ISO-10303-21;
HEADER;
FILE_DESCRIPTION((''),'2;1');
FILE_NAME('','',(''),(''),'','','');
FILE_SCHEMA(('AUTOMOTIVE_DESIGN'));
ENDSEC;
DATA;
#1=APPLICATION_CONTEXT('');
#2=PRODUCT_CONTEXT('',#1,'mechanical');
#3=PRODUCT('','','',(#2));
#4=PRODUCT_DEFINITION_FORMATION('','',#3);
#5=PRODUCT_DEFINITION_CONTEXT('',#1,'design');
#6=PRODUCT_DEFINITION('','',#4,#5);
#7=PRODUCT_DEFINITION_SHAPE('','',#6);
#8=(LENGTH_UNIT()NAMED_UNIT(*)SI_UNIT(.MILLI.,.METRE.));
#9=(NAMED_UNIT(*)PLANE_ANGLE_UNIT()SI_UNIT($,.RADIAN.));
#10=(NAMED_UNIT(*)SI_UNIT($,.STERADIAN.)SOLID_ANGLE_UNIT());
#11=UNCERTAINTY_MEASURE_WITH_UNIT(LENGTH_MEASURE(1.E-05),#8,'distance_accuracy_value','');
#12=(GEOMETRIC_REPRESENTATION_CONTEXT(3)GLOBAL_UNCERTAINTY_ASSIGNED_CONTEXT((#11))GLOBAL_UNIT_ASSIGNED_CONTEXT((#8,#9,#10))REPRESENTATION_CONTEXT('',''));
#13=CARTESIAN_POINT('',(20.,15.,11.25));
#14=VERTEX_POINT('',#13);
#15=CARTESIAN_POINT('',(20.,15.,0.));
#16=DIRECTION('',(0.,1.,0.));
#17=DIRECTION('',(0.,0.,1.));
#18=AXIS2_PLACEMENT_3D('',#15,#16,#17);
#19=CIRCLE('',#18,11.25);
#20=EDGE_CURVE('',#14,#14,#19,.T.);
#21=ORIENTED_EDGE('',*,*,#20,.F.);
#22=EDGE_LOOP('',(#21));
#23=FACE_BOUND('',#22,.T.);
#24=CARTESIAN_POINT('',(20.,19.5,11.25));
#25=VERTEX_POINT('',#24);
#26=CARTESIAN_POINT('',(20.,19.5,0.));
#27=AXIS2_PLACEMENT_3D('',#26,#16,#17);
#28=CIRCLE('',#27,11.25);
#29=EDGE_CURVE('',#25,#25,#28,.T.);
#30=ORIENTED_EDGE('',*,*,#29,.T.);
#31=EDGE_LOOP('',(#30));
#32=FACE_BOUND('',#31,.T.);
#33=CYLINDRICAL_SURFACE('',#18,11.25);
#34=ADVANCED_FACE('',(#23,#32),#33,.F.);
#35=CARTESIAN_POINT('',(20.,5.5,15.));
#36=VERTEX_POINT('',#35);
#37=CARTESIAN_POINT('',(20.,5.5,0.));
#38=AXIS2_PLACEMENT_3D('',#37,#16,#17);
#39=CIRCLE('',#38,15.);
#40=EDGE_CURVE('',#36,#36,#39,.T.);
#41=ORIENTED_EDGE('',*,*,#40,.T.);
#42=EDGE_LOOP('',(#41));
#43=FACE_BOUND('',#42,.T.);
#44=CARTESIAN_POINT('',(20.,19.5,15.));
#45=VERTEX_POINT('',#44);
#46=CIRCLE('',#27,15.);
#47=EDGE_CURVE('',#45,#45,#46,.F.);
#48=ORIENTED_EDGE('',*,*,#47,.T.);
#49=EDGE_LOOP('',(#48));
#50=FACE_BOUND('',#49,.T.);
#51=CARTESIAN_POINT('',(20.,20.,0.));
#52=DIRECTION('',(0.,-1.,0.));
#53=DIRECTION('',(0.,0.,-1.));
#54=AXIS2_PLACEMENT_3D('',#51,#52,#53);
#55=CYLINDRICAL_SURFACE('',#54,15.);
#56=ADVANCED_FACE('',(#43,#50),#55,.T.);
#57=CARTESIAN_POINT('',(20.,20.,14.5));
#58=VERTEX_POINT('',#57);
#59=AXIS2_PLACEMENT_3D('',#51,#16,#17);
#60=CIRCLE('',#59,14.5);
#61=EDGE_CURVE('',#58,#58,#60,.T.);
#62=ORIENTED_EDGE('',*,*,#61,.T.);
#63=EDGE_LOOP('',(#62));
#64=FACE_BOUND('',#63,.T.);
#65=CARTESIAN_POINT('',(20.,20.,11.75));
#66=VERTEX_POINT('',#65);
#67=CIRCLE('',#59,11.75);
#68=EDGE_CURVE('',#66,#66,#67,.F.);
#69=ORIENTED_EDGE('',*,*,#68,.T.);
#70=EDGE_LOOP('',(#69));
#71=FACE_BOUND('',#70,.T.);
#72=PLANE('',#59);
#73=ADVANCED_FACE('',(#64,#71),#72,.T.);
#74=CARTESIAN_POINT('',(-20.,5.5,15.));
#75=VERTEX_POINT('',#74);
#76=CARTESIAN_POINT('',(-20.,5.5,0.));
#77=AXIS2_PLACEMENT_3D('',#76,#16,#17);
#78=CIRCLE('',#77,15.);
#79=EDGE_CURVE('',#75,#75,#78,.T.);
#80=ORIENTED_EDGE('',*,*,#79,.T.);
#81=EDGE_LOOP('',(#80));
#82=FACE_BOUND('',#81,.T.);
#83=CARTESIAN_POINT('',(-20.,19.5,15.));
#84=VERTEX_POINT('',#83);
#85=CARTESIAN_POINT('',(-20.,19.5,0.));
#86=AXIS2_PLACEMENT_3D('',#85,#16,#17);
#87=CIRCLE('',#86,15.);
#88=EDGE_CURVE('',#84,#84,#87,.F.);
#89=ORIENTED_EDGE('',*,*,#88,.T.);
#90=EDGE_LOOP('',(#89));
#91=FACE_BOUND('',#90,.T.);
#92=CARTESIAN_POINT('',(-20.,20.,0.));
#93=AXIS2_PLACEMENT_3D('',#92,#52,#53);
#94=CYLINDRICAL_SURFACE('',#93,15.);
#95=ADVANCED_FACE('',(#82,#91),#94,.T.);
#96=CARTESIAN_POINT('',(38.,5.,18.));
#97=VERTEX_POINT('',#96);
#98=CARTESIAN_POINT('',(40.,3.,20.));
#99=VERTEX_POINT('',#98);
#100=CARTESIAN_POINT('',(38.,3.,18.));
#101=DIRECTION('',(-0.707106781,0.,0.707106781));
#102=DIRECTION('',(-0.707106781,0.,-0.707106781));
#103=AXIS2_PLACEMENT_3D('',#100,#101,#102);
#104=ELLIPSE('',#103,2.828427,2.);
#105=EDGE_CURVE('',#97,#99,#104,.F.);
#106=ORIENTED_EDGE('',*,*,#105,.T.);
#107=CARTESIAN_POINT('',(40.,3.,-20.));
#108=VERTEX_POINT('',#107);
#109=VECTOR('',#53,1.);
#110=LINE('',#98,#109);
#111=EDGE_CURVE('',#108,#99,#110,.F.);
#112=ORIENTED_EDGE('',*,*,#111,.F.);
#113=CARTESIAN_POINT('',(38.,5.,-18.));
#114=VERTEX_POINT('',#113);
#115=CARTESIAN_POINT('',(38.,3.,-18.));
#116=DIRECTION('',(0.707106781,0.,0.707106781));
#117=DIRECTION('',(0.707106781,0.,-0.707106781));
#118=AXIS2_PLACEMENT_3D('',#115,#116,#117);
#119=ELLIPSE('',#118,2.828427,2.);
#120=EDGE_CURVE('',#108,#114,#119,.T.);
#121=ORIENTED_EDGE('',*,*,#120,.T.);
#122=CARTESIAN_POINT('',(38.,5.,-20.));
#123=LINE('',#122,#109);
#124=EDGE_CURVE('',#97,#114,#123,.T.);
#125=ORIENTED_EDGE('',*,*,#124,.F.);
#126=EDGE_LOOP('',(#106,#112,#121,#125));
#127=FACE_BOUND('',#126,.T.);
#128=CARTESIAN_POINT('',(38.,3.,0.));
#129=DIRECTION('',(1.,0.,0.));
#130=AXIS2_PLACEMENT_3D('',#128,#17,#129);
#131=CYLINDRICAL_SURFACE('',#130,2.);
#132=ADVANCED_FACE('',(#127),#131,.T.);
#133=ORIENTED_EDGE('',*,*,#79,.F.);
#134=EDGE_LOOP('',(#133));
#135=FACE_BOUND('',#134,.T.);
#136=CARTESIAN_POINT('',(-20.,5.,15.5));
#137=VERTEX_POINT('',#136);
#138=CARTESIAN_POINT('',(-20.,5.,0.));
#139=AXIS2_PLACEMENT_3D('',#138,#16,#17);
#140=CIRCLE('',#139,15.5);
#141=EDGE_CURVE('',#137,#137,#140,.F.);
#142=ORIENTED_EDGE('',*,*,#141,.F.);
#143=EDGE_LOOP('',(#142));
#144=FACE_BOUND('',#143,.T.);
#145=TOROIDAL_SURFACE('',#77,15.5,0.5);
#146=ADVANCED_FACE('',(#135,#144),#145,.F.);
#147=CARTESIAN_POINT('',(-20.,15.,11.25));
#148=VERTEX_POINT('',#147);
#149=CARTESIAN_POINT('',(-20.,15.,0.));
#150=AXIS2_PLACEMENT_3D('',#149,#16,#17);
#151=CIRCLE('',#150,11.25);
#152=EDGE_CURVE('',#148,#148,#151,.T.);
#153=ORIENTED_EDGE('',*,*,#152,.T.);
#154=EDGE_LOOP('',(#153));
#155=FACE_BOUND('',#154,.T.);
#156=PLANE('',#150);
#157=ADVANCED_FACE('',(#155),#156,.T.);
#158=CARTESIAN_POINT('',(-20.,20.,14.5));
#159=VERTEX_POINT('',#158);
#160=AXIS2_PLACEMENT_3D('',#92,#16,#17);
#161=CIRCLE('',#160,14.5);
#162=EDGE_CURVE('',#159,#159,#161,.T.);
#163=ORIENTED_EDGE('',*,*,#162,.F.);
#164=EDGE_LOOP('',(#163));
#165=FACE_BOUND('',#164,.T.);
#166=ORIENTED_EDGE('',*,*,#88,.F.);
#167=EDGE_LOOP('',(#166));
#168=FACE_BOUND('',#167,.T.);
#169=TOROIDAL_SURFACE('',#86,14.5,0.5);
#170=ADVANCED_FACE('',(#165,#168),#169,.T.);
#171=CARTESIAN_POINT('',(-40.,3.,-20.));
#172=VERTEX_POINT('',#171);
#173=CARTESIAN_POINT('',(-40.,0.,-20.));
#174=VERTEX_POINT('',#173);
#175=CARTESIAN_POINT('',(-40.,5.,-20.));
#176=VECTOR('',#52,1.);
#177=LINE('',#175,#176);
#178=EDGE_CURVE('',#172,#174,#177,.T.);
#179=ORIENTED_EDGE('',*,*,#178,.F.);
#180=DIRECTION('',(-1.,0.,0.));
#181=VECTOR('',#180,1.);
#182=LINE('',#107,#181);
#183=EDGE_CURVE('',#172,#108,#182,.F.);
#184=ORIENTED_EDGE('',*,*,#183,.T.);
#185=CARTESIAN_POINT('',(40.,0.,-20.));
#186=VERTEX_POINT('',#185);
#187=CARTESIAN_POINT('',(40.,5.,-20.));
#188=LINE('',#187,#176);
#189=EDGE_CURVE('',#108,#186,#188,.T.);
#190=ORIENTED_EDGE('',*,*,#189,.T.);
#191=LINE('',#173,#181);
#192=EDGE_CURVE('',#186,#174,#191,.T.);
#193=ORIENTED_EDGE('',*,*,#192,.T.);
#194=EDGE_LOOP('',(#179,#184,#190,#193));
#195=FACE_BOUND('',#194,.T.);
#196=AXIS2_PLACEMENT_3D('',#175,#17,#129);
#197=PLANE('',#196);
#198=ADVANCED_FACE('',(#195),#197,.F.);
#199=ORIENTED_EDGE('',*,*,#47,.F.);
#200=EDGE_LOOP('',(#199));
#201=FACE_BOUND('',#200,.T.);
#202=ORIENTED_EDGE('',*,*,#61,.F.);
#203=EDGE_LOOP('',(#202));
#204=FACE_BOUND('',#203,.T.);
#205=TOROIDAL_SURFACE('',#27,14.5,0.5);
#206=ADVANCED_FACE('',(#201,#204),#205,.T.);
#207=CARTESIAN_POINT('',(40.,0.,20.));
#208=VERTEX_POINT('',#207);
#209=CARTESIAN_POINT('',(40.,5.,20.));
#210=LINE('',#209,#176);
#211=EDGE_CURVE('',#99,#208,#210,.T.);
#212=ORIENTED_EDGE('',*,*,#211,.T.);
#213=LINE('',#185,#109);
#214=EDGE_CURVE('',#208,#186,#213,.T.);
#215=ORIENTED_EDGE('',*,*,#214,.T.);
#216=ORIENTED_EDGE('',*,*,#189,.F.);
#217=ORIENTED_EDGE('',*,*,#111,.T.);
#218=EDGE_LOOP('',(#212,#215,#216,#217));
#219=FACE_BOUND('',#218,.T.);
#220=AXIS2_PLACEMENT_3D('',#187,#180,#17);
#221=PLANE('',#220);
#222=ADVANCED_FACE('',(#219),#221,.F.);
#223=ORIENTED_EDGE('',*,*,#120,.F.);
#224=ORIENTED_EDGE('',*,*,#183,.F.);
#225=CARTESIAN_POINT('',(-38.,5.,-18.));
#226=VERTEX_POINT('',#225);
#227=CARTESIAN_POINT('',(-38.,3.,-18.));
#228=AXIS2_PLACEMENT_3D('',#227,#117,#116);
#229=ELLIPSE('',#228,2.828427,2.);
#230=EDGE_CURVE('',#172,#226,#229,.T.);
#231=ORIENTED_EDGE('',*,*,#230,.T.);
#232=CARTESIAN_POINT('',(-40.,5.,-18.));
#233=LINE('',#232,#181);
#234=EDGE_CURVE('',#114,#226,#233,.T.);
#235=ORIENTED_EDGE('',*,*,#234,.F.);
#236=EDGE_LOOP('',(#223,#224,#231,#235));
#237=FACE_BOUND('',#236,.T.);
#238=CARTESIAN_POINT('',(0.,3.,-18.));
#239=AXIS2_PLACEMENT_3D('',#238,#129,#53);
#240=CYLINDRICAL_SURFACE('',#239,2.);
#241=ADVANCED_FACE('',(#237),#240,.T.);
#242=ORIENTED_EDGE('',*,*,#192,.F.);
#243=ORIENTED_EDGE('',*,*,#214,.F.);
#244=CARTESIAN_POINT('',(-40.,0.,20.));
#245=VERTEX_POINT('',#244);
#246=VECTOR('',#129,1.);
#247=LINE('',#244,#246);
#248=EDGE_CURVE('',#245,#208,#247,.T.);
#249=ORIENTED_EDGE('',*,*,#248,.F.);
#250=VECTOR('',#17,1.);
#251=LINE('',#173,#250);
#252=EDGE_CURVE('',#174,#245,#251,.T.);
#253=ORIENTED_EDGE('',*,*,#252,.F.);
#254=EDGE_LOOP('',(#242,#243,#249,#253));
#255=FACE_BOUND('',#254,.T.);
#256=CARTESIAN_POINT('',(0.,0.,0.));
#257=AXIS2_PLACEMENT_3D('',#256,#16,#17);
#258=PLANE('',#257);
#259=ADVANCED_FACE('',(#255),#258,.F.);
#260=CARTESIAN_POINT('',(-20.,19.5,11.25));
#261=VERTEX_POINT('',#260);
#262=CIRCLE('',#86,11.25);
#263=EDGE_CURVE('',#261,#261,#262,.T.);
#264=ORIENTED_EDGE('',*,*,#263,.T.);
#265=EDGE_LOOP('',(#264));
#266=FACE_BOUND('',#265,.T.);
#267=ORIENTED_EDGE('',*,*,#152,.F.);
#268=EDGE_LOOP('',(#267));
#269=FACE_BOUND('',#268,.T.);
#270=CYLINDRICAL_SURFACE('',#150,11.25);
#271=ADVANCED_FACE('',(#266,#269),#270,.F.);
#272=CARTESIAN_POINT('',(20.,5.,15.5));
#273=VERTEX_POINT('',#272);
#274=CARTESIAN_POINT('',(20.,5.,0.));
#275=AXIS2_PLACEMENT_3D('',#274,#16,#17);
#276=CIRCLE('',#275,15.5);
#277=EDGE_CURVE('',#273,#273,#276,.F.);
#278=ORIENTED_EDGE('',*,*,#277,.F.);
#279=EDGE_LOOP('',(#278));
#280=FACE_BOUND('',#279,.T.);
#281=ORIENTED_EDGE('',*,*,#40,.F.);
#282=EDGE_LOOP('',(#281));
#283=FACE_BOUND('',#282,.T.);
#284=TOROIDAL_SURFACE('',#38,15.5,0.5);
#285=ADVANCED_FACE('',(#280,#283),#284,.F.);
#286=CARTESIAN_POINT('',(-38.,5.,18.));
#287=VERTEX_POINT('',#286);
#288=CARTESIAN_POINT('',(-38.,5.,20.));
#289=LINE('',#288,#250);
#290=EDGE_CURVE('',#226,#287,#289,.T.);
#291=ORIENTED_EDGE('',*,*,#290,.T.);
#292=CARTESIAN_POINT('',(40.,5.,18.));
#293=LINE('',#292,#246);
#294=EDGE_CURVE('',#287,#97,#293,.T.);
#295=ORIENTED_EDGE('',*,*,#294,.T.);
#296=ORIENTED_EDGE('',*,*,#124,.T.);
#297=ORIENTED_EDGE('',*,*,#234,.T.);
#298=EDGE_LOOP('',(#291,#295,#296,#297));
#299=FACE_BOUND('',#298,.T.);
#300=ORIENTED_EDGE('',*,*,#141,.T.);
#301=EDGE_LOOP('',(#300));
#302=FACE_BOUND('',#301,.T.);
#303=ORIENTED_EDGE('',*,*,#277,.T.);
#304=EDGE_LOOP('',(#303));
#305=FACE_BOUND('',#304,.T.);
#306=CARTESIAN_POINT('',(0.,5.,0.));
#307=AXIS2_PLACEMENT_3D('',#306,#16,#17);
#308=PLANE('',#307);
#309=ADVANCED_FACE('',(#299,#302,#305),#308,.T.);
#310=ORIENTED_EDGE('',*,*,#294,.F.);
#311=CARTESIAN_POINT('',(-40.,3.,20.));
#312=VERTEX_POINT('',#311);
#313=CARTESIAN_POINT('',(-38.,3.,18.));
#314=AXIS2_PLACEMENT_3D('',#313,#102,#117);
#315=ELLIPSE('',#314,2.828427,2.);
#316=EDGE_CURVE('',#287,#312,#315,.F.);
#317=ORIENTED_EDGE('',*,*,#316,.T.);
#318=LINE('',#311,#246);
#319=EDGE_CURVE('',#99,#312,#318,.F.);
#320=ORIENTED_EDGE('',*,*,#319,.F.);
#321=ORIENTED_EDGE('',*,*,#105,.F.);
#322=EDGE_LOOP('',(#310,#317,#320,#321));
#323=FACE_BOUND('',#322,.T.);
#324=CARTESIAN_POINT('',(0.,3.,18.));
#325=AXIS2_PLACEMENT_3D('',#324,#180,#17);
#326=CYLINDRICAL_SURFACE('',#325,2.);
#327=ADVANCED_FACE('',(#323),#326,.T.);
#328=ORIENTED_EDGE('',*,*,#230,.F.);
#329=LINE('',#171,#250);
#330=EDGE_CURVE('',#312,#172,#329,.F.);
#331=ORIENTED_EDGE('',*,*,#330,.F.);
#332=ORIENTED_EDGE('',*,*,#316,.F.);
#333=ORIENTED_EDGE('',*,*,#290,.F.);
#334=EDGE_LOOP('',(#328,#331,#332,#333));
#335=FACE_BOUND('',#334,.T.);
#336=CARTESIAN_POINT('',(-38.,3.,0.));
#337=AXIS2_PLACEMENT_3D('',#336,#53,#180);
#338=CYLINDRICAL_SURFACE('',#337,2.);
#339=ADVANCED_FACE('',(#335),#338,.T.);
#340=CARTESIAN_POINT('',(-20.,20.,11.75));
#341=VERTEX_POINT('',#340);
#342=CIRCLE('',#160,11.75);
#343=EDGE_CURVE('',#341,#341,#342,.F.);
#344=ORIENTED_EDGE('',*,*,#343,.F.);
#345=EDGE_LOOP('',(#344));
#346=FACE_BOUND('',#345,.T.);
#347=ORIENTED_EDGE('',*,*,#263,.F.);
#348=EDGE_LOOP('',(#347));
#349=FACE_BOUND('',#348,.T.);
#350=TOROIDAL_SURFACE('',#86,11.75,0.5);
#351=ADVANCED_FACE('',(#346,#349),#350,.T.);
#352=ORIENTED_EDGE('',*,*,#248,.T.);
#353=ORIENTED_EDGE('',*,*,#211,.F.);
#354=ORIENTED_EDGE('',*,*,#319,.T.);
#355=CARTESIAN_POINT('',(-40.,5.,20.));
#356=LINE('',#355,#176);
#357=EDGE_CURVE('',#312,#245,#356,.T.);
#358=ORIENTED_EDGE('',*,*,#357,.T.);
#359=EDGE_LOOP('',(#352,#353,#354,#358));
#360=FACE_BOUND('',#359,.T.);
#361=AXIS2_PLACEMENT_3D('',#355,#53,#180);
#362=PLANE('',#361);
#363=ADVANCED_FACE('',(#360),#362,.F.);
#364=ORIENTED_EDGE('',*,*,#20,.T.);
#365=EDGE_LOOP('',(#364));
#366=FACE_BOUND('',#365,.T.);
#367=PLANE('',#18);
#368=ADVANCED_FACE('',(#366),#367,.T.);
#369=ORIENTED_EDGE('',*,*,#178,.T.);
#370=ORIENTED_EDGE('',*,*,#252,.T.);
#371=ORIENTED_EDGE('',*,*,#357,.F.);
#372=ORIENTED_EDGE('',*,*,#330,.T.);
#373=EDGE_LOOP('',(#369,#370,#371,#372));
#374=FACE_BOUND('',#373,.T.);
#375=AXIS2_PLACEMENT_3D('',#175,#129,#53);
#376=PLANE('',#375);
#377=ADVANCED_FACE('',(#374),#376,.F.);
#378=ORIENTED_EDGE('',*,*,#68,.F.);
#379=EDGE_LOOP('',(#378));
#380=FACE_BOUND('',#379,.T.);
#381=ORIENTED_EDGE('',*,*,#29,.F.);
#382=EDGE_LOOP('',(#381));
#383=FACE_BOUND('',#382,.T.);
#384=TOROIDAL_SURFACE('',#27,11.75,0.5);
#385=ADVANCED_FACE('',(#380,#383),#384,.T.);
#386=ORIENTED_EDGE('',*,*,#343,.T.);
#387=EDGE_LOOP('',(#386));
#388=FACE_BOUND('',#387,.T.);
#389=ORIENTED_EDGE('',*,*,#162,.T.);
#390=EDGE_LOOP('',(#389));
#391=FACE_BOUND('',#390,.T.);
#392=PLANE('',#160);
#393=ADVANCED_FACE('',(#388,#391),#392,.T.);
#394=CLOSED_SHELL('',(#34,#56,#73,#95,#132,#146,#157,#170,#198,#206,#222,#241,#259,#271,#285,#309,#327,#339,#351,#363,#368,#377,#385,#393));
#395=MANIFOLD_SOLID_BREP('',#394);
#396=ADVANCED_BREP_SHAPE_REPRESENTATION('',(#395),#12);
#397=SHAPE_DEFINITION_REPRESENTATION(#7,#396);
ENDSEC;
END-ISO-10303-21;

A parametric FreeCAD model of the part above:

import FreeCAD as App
import Part
import Sketcher
Q = App.Units.Quantity


def edges_at(feature, points):
    """Names of the edges that pass closest to the given points."""
    edges = feature.Shape.Edges
    near = lambda p: min(range(len(edges)), key=lambda i: edges[i].distToShape(Part.Vertex(*p))[0])
    return sorted({f"Edge{near(p) + 1}" for p in points})

doc = App.newDocument("Part")
params = doc.addObject("Spreadsheet::Sheet", "Params")
for row, (alias, value) in enumerate([
    ("sketch1_width", "80 mm"),
    ("sketch1_height", "40 mm"),
    ("pad1_length", "5 mm"),
    ("sketch2_diameter", "30 mm"),
    ("pad2_length", "15 mm"),
    ("sketch3_diameter", "22.5 mm"),
    ("pocket1_length", "5 mm"),
    ("fillet_radius", "2 mm"),
    ("fillet2_radius", "0.5 mm"),
], start=1):
    params.set(f"A{row}", alias)
    params.set(f"B{row}", "=" + value)
    params.setAlias(f"B{row}", alias)

body = doc.addObject("PartDesign::Body", "Body")

# Sketch on XZ plane
sketch1 = doc.addObject("Sketcher::SketchObject", "Sketch")
body.addObject(sketch1)
sketch1.AttachmentSupport = (doc.XZ_Plane, [""])
sketch1.MapMode = "FlatFace"
sketch1.addGeometry(Part.LineSegment(App.Vector(-40, -20, 0), App.Vector(-40, 20, 0)), False)
sketch1.addGeometry(Part.LineSegment(App.Vector(-40, 20, 0), App.Vector(40, 20, 0)), False)
sketch1.addGeometry(Part.LineSegment(App.Vector(40, 20, 0), App.Vector(40, -20, 0)), False)
sketch1.addGeometry(Part.LineSegment(App.Vector(40, -20, 0), App.Vector(-40, -20, 0)), False)
sketch1.addConstraint(Sketcher.Constraint("Coincident", 0, 2, 1, 1))
sketch1.addConstraint(Sketcher.Constraint("Coincident", 1, 2, 2, 1))
sketch1.addConstraint(Sketcher.Constraint("Coincident", 2, 2, 3, 1))
sketch1.addConstraint(Sketcher.Constraint("Coincident", 3, 2, 0, 1))
sketch1.addConstraint(Sketcher.Constraint("Vertical", 0))
sketch1.addConstraint(Sketcher.Constraint("Horizontal", 1))
sketch1.addConstraint(Sketcher.Constraint("Vertical", 2))
sketch1.addConstraint(Sketcher.Constraint("Horizontal", 3))
sketch1.addConstraint(Sketcher.Constraint("Symmetric", 0, 2, 2, 2, -1, 1))
sketch1.addConstraint(Sketcher.Constraint("DistanceX", 1, 1, 1, 2, Q("80 mm")))
sketch1.addConstraint(Sketcher.Constraint("DistanceY", 0, 1, 0, 2, Q("40 mm")))
sketch1.setExpression("Constraints[9]", "Params.sketch1_width")
sketch1.setExpression("Constraints[10]", "Params.sketch1_height")
pad1 = doc.addObject("PartDesign::Pad", "Pad")
body.addObject(pad1)
pad1.Profile = sketch1
pad1.setExpression("Length", "Params.pad1_length")
pad1.Reversed = True

# Sketch on XZ plane
sketch2 = doc.addObject("Sketcher::SketchObject", "Sketch001")
body.addObject(sketch2)
sketch2.AttachmentSupport = (doc.XZ_Plane, [""])
sketch2.MapMode = "FlatFace"
sketch2.AttachmentOffset = App.Placement(App.Vector(0, 0, -5), App.Rotation())
sketch2.addGeometry(Part.Circle(App.Vector(-20, 0, 0), App.Vector(0, 0, 1), 15), False)
sketch2.addGeometry(Part.Circle(App.Vector(20, 0, 0), App.Vector(0, 0, 1), 15), False)
sketch2.addConstraint(Sketcher.Constraint("Equal", 0, 1))
sketch2.addConstraint(Sketcher.Constraint("Symmetric", 0, 3, 1, 3, -1, 1))
sketch2.addConstraint(Sketcher.Constraint("PointOnObject", 0, 3, -1))
sketch2.addConstraint(Sketcher.Constraint("Diameter", 0, Q("30 mm")))
sketch2.addConstraint(Sketcher.Constraint("DistanceX", 0, 3, -1, 1, Q("20 mm")))
sketch2.setExpression("Constraints[3]", "Params.sketch2_diameter")
pad2 = doc.addObject("PartDesign::Pad", "Pad001")
body.addObject(pad2)
pad2.Profile = sketch2
pad2.setExpression("Length", "Params.pad2_length")
pad2.Reversed = True

# Sketch on XZ plane
sketch3 = doc.addObject("Sketcher::SketchObject", "Sketch002")
body.addObject(sketch3)
sketch3.AttachmentSupport = (doc.XZ_Plane, [""])
sketch3.MapMode = "FlatFace"
sketch3.AttachmentOffset = App.Placement(App.Vector(0, 0, -20), App.Rotation())
sketch3.addGeometry(Part.Circle(App.Vector(-20, 0, 0), App.Vector(0, 0, 1), 11), False)
sketch3.addGeometry(Part.Circle(App.Vector(20, 0, 0), App.Vector(0, 0, 1), 11), False)
sketch3.addConstraint(Sketcher.Constraint("Equal", 0, 1))
sketch3.addConstraint(Sketcher.Constraint("Symmetric", 0, 3, 1, 3, -1, 1))
sketch3.addConstraint(Sketcher.Constraint("PointOnObject", 0, 3, -1))
sketch3.addConstraint(Sketcher.Constraint("Diameter", 0, Q("22.5 mm")))
sketch3.addConstraint(Sketcher.Constraint("DistanceX", 0, 3, -1, 1, Q("20 mm")))
sketch3.setExpression("Constraints[3]", "Params.sketch3_diameter")
pocket1 = doc.addObject("PartDesign::Pocket", "Pocket")
body.addObject(pocket1)
pocket1.Profile = sketch3
pocket1.setExpression("Length", "Params.pocket1_length")
pocket1.Reversed = True
doc.recompute()

fillet = doc.addObject("PartDesign::Fillet", "Fillet")
body.addObject(fillet)
fillet.Base = (pocket1, edges_at(pocket1, [
    (-40, 5, 0),
    (0, 5, 20),
    (40, 5, 0),
    (0, 5, -20),
]))
fillet.setExpression("Radius", "Params.fillet_radius")
doc.recompute()

fillet2 = doc.addObject("PartDesign::Fillet", "Fillet001")
body.addObject(fillet2)
fillet2.Base = (fillet, edges_at(fillet, [
    (-35, 5, 0),
    (-35, 20, 0),
    (5, 5, 0),
    (5, 20, 0),
    (-31.25, 20, 0),
    (8.75, 20, 0),
]))
fillet2.setExpression("Radius", "Params.fillet2_radius")

doc.recompute()
